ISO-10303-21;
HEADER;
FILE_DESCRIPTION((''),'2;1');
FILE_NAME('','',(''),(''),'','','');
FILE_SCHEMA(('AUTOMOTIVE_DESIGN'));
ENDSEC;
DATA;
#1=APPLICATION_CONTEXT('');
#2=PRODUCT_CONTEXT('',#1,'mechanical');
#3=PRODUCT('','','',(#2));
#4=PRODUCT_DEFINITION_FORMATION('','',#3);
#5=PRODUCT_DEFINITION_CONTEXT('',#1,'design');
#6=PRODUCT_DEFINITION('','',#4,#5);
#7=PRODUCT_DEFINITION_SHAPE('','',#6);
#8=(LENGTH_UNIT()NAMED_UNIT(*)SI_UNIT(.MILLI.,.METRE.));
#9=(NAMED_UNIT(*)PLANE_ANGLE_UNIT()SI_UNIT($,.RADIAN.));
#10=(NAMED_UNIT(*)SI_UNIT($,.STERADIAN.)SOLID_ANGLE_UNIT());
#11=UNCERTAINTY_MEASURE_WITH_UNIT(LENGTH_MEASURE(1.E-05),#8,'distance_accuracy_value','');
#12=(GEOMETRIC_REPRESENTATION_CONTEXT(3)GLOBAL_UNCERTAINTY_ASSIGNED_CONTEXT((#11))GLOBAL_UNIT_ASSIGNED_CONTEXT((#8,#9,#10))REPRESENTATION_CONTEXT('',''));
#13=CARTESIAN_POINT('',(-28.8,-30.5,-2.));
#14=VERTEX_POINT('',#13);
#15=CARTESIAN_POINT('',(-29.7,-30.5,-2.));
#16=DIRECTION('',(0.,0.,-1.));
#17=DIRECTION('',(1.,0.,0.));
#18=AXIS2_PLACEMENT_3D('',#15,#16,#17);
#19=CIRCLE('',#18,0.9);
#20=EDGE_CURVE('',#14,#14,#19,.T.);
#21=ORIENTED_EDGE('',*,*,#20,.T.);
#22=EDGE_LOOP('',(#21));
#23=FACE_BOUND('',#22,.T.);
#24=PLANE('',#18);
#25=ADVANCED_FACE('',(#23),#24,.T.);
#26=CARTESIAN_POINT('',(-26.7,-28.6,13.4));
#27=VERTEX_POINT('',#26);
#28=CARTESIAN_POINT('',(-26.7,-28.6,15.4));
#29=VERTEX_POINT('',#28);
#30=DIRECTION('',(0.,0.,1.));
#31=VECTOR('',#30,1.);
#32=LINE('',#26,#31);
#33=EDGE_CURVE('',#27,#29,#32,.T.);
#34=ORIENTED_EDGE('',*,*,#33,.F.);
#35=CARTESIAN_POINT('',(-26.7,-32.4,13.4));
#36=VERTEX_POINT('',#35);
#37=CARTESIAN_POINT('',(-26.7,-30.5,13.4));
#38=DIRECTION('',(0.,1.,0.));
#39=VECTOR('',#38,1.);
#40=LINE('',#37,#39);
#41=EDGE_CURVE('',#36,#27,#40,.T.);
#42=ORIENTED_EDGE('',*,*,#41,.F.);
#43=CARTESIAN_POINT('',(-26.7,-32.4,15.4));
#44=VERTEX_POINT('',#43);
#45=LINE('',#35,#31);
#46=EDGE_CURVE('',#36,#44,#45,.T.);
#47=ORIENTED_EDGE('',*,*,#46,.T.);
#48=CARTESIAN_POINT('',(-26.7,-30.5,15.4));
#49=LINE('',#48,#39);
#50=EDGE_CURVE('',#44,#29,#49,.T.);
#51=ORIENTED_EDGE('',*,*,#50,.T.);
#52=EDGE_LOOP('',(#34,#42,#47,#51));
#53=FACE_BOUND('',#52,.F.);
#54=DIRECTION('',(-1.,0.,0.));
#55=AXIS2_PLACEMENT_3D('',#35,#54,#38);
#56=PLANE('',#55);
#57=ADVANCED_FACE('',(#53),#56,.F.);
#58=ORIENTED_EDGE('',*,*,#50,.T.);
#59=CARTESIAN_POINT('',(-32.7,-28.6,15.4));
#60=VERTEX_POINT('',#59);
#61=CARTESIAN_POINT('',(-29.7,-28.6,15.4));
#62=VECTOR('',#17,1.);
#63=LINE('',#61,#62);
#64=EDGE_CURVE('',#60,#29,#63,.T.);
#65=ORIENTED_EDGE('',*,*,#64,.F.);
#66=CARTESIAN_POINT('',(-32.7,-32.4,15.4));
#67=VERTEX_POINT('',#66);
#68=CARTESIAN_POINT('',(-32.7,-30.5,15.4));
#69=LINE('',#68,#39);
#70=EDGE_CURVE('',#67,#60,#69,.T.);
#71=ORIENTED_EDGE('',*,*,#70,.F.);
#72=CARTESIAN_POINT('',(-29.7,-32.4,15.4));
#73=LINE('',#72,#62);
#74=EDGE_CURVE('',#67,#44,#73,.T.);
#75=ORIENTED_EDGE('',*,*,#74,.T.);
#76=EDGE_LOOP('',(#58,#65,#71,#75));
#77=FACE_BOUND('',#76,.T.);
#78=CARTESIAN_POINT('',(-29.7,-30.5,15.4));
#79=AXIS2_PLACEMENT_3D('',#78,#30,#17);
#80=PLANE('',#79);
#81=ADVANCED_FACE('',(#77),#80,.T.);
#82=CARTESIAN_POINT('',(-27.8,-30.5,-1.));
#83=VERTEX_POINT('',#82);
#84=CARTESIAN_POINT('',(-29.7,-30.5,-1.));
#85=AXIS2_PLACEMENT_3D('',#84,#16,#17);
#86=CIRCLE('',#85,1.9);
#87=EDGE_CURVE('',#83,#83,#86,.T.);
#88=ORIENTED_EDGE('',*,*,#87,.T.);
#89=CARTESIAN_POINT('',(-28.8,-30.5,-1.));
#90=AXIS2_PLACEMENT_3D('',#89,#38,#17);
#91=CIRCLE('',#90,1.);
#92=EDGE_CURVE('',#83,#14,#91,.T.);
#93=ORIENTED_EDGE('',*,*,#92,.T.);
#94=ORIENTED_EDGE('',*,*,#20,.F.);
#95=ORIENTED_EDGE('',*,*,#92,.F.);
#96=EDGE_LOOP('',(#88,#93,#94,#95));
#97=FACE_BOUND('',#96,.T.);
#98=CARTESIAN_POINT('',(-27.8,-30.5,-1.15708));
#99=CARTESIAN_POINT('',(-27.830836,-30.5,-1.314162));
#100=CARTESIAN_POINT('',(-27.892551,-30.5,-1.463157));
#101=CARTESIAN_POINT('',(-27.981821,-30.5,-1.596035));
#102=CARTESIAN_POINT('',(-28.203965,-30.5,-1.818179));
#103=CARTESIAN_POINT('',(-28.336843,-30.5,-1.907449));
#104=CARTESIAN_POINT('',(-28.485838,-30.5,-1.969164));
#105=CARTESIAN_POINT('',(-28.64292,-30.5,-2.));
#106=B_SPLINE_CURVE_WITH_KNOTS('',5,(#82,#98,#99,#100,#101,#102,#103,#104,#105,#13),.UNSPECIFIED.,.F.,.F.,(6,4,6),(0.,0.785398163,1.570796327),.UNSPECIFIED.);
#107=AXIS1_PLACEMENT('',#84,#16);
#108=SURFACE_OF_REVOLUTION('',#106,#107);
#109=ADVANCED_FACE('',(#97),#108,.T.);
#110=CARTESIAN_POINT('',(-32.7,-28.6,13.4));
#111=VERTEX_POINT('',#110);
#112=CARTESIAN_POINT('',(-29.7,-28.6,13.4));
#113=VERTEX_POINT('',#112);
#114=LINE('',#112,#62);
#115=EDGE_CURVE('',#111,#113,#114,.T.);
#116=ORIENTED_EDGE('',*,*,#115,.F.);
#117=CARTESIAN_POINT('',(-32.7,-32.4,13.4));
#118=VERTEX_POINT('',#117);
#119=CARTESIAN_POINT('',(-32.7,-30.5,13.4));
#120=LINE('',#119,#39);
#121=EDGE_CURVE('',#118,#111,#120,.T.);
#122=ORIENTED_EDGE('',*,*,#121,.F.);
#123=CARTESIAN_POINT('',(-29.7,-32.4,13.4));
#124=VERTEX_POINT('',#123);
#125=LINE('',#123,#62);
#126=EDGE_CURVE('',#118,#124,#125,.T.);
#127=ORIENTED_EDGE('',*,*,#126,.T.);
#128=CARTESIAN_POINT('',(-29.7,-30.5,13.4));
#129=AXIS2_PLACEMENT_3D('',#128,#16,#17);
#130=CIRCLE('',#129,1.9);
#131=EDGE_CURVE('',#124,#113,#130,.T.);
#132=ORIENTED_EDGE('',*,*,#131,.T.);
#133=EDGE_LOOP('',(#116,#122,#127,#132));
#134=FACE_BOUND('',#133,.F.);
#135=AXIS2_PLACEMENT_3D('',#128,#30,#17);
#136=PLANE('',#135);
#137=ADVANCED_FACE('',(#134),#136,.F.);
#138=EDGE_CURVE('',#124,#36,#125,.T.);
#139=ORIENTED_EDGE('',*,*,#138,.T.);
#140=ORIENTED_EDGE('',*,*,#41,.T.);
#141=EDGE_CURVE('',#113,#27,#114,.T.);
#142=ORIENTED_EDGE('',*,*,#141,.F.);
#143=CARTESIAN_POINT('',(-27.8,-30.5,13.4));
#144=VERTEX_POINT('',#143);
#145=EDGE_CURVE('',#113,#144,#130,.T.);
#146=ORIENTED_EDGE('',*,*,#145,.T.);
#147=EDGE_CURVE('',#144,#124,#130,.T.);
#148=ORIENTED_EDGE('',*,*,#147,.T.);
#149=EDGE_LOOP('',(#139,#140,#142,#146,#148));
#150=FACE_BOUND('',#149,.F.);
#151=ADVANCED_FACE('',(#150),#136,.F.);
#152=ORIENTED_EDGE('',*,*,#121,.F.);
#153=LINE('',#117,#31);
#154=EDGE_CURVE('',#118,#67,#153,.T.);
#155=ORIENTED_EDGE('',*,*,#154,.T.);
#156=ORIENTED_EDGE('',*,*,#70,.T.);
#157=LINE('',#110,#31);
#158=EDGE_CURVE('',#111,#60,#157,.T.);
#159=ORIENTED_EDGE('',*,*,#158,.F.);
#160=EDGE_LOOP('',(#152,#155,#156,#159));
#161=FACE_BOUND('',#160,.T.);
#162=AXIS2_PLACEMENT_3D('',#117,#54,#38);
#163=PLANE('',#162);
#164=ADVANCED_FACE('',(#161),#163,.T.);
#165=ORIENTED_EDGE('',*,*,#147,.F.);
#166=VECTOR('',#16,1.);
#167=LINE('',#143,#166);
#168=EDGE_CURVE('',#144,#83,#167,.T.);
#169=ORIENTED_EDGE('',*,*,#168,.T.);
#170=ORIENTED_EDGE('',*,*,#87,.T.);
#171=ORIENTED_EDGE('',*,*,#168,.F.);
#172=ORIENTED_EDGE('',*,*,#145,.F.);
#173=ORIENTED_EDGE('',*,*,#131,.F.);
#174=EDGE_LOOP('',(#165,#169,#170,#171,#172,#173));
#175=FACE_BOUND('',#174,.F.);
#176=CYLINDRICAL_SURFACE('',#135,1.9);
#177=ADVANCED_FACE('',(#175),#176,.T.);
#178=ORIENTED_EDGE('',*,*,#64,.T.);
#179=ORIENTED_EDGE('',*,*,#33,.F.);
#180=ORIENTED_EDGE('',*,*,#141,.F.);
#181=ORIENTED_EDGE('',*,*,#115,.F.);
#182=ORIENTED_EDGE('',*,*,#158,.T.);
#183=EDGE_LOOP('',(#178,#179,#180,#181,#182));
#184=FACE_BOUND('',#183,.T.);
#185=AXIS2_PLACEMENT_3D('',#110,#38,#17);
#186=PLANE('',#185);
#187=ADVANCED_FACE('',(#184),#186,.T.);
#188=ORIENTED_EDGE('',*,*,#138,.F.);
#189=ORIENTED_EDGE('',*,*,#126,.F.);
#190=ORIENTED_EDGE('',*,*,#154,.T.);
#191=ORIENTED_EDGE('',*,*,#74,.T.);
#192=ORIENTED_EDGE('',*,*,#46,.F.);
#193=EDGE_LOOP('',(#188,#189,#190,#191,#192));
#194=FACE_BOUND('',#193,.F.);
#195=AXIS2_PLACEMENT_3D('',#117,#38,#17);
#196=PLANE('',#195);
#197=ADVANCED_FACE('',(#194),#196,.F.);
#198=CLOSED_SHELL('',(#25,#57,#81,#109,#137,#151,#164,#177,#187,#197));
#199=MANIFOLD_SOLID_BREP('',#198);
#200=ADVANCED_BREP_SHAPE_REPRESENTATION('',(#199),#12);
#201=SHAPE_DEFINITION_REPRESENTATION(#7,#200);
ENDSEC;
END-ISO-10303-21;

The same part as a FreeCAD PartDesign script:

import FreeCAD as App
import Part
import Sketcher
Q = App.Units.Quantity


def edges_at(feature, points):
    """Names of the edges that pass closest to the given points."""
    edges = feature.Shape.Edges
    near = lambda p: min(range(len(edges)), key=lambda i: edges[i].distToShape(Part.Vertex(*p))[0])
    return sorted({f"Edge{near(p) + 1}" for p in points})

doc = App.newDocument("Part")
body = doc.addObject("PartDesign::Body", "Body")

# Sketch on XY plane
sketch1 = body.newObject("Sketcher::SketchObject", "Sketch")
sketch1.AttachmentSupport = (doc.getObject("XY_Plane"), [""])
sketch1.MapMode = "FlatFace"
sketch1.AttachmentOffset = App.Placement(App.Vector(0, 0, 13.4), App.Rotation())
sketch1.addGeometry(Part.LineSegment(App.Vector(-32.7, -28.6, 0), App.Vector(-32.7, -32.4, 0)), False)
sketch1.addGeometry(Part.LineSegment(App.Vector(-32.7, -32.4, 0), App.Vector(-26.7, -32.4, 0)), False)
sketch1.addGeometry(Part.LineSegment(App.Vector(-26.7, -32.4, 0), App.Vector(-26.7, -28.6, 0)), False)
sketch1.addGeometry(Part.LineSegment(App.Vector(-26.7, -28.6, 0), App.Vector(-32.7, -28.6, 0)), False)
sketch1.addConstraint(Sketcher.Constraint("Coincident", 0, 2, 1, 1))
sketch1.addConstraint(Sketcher.Constraint("Coincident", 1, 2, 2, 1))
sketch1.addConstraint(Sketcher.Constraint("Coincident", 2, 2, 3, 1))
sketch1.addConstraint(Sketcher.Constraint("Coincident", 3, 2, 0, 1))
sketch1.addConstraint(Sketcher.Constraint("Vertical", 0))
sketch1.addConstraint(Sketcher.Constraint("Horizontal", 1))
sketch1.addConstraint(Sketcher.Constraint("Vertical", 2))
sketch1.addConstraint(Sketcher.Constraint("Horizontal", 3))
sketch1.addConstraint(Sketcher.Constraint("DistanceX", 1, 1, 1, 2, Q("6 mm")))
sketch1.addConstraint(Sketcher.Constraint("DistanceY", 0, 2, 0, 1, Q("3.8 mm")))
sketch1.addConstraint(Sketcher.Constraint("DistanceX", 0, 2, -1, 1, Q("32.7 mm")))
sketch1.addConstraint(Sketcher.Constraint("DistanceY", 0, 2, -1, 1, Q("32.4 mm")))
pad1 = body.newObject("PartDesign::Pad", "Pad")
pad1.Profile = sketch1
pad1.Length = 2

# Sketch on XY plane
sketch2 = body.newObject("Sketcher::SketchObject", "Sketch001")
sketch2.AttachmentSupport = (doc.getObject("XY_Plane"), [""])
sketch2.MapMode = "FlatFace"
sketch2.AttachmentOffset = App.Placement(App.Vector(0, 0, 13.4), App.Rotation())
sketch2.addGeometry(Part.Circle(App.Vector(-29.7, -30.5, 0), App.Vector(0, 0, 1), 1.9), False)
sketch2.addConstraint(Sketcher.Constraint("Diameter", 0, Q("3.8 mm")))
sketch2.addConstraint(Sketcher.Constraint("DistanceX", 0, 3, -1, 1, Q("29.7 mm")))
sketch2.addConstraint(Sketcher.Constraint("DistanceY", 0, 3, -1, 1, Q("30.5 mm")))
pad2 = body.newObject("PartDesign::Pad", "Pad001")
pad2.Profile = sketch2
pad2.Length = 15.4
pad2.Reversed = True
doc.recompute()

fillet = body.newObject("PartDesign::Fillet", "Fillet")
fillet.Base = (pad2, edges_at(pad2, [(-31.6, -30.5, -2)]))
fillet.Radius = 1

doc.recompute()
